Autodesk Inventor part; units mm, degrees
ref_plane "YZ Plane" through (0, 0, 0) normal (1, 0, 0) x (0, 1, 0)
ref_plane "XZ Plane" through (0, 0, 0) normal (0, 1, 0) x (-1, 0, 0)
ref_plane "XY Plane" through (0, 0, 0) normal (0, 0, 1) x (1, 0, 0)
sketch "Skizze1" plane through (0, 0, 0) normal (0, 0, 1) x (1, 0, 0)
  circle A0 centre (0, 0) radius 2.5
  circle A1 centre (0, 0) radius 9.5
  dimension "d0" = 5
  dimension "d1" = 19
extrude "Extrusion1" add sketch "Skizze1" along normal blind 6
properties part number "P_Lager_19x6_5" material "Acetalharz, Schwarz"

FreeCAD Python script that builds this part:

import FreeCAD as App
import Part
import Sketcher
Q = App.Units.Quantity

doc = App.newDocument("Part")
params = doc.addObject("Spreadsheet::Sheet", "Params")
for row, (alias, value) in enumerate([
    ("sketch1_diameter", "19 mm"),
    ("sketch1_diameter2", "5 mm"),
    ("pad1_length", "6 mm"),
], start=1):
    params.set(f"A{row}", alias)
    params.set(f"B{row}", "=" + value)
    params.setAlias(f"B{row}", alias)

body = doc.addObject("PartDesign::Body", "Body")

# Sketch on XY plane
sketch1 = body.newObject("Sketcher::SketchObject", "Sketch")
sketch1.AttachmentSupport = (doc.getObject("XY_Plane"), [""])
sketch1.MapMode = "FlatFace"
sketch1.addGeometry([
    Part.Circle(App.Vector(0, 0, 0), App.Vector(0, 0, 1), 9.5),
    Part.Circle(App.Vector(0, 0, 0), App.Vector(0, 0, 1), 2.5),
], False)
sketch1.addConstraint([
    Sketcher.Constraint("Coincident", 0, 3, -1, 1),
    Sketcher.Constraint("Coincident", 1, 3, -1, 1),
    Sketcher.Constraint("Diameter", 0, Q("19 mm")),
    Sketcher.Constraint("Diameter", 1, Q("5 mm")),
])
sketch1.setExpression("Constraints[2]", "Params.sketch1_diameter")
sketch1.setExpression("Constraints[3]", "Params.sketch1_diameter2")
pad1 = body.newObject("PartDesign::Pad", "Pad")
pad1.Profile = sketch1
pad1.setExpression("Length", "Params.pad1_length")

doc.recompute()
